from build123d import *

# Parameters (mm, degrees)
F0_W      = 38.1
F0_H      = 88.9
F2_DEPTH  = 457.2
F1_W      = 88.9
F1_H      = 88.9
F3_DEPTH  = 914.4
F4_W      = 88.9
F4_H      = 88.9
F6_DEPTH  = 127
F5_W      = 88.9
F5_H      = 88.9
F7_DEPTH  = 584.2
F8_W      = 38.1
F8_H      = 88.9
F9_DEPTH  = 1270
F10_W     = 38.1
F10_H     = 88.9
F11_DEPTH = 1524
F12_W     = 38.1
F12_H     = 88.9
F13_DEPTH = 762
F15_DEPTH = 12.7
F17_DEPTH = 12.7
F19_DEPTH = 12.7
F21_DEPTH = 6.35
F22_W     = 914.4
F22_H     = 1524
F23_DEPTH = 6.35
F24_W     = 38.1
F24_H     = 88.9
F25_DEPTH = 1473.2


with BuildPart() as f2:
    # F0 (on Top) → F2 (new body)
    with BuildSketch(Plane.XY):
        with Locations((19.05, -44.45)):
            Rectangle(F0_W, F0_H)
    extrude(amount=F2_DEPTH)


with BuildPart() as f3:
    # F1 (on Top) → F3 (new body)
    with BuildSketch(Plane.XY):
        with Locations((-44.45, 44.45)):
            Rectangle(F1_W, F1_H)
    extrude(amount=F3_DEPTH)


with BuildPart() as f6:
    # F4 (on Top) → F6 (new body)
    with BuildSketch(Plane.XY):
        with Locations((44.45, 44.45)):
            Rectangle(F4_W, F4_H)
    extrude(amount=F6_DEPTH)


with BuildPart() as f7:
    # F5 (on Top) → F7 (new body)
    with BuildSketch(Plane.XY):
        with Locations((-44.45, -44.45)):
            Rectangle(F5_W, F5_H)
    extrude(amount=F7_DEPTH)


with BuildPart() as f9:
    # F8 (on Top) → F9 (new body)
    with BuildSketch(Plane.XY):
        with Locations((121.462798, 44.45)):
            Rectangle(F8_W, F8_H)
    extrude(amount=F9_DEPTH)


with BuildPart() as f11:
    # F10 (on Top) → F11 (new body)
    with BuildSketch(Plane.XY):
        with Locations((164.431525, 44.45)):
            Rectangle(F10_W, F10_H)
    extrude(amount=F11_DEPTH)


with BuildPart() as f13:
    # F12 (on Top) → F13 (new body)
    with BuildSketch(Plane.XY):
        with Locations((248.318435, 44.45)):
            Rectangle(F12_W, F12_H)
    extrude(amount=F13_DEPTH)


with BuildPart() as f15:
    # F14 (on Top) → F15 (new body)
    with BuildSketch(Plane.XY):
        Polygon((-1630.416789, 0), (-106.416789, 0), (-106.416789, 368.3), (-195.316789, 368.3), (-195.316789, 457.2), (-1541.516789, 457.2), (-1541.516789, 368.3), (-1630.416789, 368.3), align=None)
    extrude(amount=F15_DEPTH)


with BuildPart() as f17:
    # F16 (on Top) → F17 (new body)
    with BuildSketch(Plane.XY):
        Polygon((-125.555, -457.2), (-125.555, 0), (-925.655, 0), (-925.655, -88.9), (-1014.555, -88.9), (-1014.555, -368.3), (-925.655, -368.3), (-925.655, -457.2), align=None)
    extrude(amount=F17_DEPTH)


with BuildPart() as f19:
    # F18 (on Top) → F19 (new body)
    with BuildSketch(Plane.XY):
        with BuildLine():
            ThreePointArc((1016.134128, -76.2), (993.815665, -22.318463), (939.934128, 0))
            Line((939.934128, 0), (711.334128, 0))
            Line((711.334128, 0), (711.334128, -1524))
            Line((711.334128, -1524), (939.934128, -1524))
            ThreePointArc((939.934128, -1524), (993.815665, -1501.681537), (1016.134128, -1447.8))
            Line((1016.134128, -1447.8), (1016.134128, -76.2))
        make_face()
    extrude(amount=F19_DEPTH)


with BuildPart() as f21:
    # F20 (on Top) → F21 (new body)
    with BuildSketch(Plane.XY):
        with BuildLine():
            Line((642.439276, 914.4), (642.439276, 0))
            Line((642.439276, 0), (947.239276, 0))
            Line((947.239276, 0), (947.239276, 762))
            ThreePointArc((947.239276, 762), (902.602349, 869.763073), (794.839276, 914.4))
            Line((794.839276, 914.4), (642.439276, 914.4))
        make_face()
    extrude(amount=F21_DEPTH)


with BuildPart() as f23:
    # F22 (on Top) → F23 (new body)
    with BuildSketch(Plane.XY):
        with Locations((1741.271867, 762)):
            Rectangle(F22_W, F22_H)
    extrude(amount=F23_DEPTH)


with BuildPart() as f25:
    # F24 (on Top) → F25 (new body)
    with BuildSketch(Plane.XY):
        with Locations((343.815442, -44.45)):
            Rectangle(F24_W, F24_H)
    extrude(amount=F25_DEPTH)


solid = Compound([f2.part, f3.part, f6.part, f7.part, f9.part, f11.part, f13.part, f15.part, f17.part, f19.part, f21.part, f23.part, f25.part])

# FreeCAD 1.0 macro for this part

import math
import FreeCAD as App
import Part
import Sketcher

V = App.Vector
Q = App.Units.Quantity


def add_polygon(sketch, points):
    """Adds a closed chain of lines whose ends are joined by coincident constraints."""
    first, n = sketch.GeometryCount, len(points)
    for a, b in zip(points, points[1:] + points[:1]):
        sketch.addGeometry(Part.LineSegment(App.Vector(*a, 0), App.Vector(*b, 0)), False)
    for i in range(n):
        sketch.addConstraint(Sketcher.Constraint("Coincident", first + i, 2, first + (i + 1) % n, 1))

doc = App.newDocument("Part")
params = doc.addObject("Spreadsheet::Sheet", "Params")
for row, (alias, value) in enumerate([
    ("sketch1_width", "1.5 in"),
    ("sketch1_height", "3.5 in"),
    ("pad1_length", "18 in"),
    ("sketch2_width", "3.5 in"),
    ("pad2_length", "36 in"),
    ("sketch3_width", "3.5 in"),
    ("pad3_length", "5 in"),
    ("sketch4_width", "3.5 in"),
    ("pad4_length", "23 in"),
    ("sketch5_width", "1.5 in"),
    ("sketch5_height", "3.5 in"),
    ("pad5_length", "50 in"),
    ("sketch6_width", "1.5 in"),
    ("sketch6_height", "3.5 in"),
    ("pad6_length", "60 in"),
    ("sketch7_width", "1.5 in"),
    ("sketch7_height", "3.5 in"),
    ("pad7_length", "30 in"),
    ("sketch8_width", "60 in"),
    ("sketch8_width2", "53 in"),
    ("sketch8_height", "14.5 in"),
    ("pad8_length", "0.5 in"),
    ("sketch9_height", "18 in"),
    ("sketch9_height2", "11 in"),
    ("sketch9_width", "31.5 in"),
    ("pad9_length", "0.5 in"),
    ("sketch10_radius", "3 in"),
    ("sketch10_width", "9 in"),
    ("sketch10_height", "60 in"),
    ("pad10_length", "0.5 in"),
    ("sketch11_radius", "6.0000001 in"),
    ("sketch11_width", "12 in"),
    ("sketch11_height", "36 in"),
    ("pad11_length", "0.25 in"),
    ("sketch12_width", "36 in"),
    ("sketch12_height", "60 in"),
    ("pad12_length", "0.25 in"),
    ("sketch13_width", "1.5 in"),
    ("sketch13_height", "3.5 in"),
    ("pad13_length", "58 in"),
], start=1):
    params.set(f"A{row}", alias)
    params.set(f"B{row}", "=" + value)
    params.setAlias(f"B{row}", alias)

body = doc.addObject("PartDesign::Body", "Body")

sketch1 = doc.addObject("Sketcher::SketchObject", "Sketch")
body.addObject(sketch1)
sketch1.AttachmentSupport = (doc.XY_Plane, [""])
sketch1.MapMode = "FlatFace"
add_polygon(sketch1, [(0, 0), (0, -88.9), (38.1, -88.9), (38.1, 0)])
sketch1.addConstraint(Sketcher.Constraint("Vertical", 0))
sketch1.addConstraint(Sketcher.Constraint("Horizontal", 1))
sketch1.addConstraint(Sketcher.Constraint("Vertical", 2))
sketch1.addConstraint(Sketcher.Constraint("Horizontal", 3))
sketch1.addConstraint(Sketcher.Constraint("Coincident", 3, 2, -1, 1))
sketch1.addConstraint(Sketcher.Constraint("DistanceX", 1, 1, 1, 2, Q("1.5 in")))
sketch1.addConstraint(Sketcher.Constraint("DistanceY", 0, 2, 0, 1, Q("3.5 in")))
sketch1.setExpression("Constraints[9]", "Params.sketch1_width")
sketch1.setExpression("Constraints[10]", "Params.sketch1_height")
pad1 = doc.addObject("PartDesign::Pad", "Pad")
body.addObject(pad1)
pad1.Profile = sketch1
pad1.setExpression("Length", "Params.pad1_length")
body2 = doc.addObject("PartDesign::Body", "Body001")

sketch2 = doc.addObject("Sketcher::SketchObject", "Sketch001")
body2.addObject(sketch2)
sketch2.AttachmentSupport = (doc.getObject("XY_Plane001"), [""])
sketch2.MapMode = "FlatFace"
add_polygon(sketch2, [(-88.9, 88.9), (-88.9, 0), (0, 0), (0, 88.9)])
sketch2.addConstraint(Sketcher.Constraint("Vertical", 0))
sketch2.addConstraint(Sketcher.Constraint("Horizontal", 1))
sketch2.addConstraint(Sketcher.Constraint("Vertical", 2))
sketch2.addConstraint(Sketcher.Constraint("Horizontal", 3))
sketch2.addConstraint(Sketcher.Constraint("Coincident", 1, 2, -1, 1))
sketch2.addConstraint(Sketcher.Constraint("Equal", 3, 0))
sketch2.addConstraint(Sketcher.Constraint("DistanceX", 1, 1, 1, 2, Q("3.5 in")))
sketch2.setExpression("Constraints[10]", "Params.sketch2_width")
pad2 = doc.addObject("PartDesign::Pad", "Pad001")
body2.addObject(pad2)
pad2.Profile = sketch2
pad2.setExpression("Length", "Params.pad2_length")
body3 = doc.addObject("PartDesign::Body", "Body002")

sketch3 = doc.addObject("Sketcher::SketchObject", "Sketch002")
body3.addObject(sketch3)
sketch3.AttachmentSupport = (doc.getObject("XY_Plane002"), [""])
sketch3.MapMode = "FlatFace"
add_polygon(sketch3, [(0, 88.9), (0, 0), (88.9, 0), (88.9, 88.9)])
sketch3.addConstraint(Sketcher.Constraint("Vertical", 0))
sketch3.addConstraint(Sketcher.Constraint("Horizontal", 1))
sketch3.addConstraint(Sketcher.Constraint("Vertical", 2))
sketch3.addConstraint(Sketcher.Constraint("Horizontal", 3))
sketch3.addConstraint(Sketcher.Constraint("Coincident", 0, 2, -1, 1))
sketch3.addConstraint(Sketcher.Constraint("Equal", 3, 0))
sketch3.addConstraint(Sketcher.Constraint("DistanceX", 1, 1, 1, 2, Q("3.5 in")))
sketch3.setExpression("Constraints[10]", "Params.sketch3_width")
pad3 = doc.addObject("PartDesign::Pad", "Pad002")
body3.addObject(pad3)
pad3.Profile = sketch3
pad3.setExpression("Length", "Params.pad3_length")
body4 = doc.addObject("PartDesign::Body", "Body003")

sketch4 = doc.addObject("Sketcher::SketchObject", "Sketch003")
body4.addObject(sketch4)
sketch4.AttachmentSupport = (doc.getObject("XY_Plane003"), [""])
sketch4.MapMode = "FlatFace"
add_polygon(sketch4, [(-88.9, 0), (-88.9, -88.9), (0, -88.9), (0, 0)])
sketch4.addConstraint(Sketcher.Constraint("Vertical", 0))
sketch4.addConstraint(Sketcher.Constraint("Horizontal", 1))
sketch4.addConstraint(Sketcher.Constraint("Vertical", 2))
sketch4.addConstraint(Sketcher.Constraint("Horizontal", 3))
sketch4.addConstraint(Sketcher.Constraint("Coincident", 2, 2, -1, 1))
sketch4.addConstraint(Sketcher.Constraint("Equal", 3, 0))
sketch4.addConstraint(Sketcher.Constraint("DistanceX", 1, 1, 1, 2, Q("3.5 in")))
sketch4.setExpression("Constraints[10]", "Params.sketch4_width")
pad4 = doc.addObject("PartDesign::Pad", "Pad003")
body4.addObject(pad4)
pad4.Profile = sketch4
pad4.setExpression("Length", "Params.pad4_length")
body5 = doc.addObject("PartDesign::Body", "Body004")

sketch5 = doc.addObject("Sketcher::SketchObject", "Sketch004")
body5.addObject(sketch5)
sketch5.AttachmentSupport = (doc.getObject("XY_Plane004"), [""])
sketch5.MapMode = "FlatFace"
add_polygon(sketch5, [(102.412798, 88.9), (102.412798, 0), (140.512798, 0), (140.512798, 88.9)])
sketch5.addConstraint(Sketcher.Constraint("Vertical", 0))
sketch5.addConstraint(Sketcher.Constraint("Horizontal", 1))
sketch5.addConstraint(Sketcher.Constraint("Vertical", 2))
sketch5.addConstraint(Sketcher.Constraint("Horizontal", 3))
sketch5.addConstraint(Sketcher.Constraint("PointOnObject", 0, 2, -1))
sketch5.addConstraint(Sketcher.Constraint("DistanceX", 1, 1, 1, 2, Q("1.5 in")))
sketch5.addConstraint(Sketcher.Constraint("DistanceY", 0, 2, 0, 1, Q("3.5 in")))
sketch5.addConstraint(Sketcher.Constraint("DistanceX", -1, 1, 0, 2, Q("4.0319999 in")))
sketch5.setExpression("Constraints[9]", "Params.sketch5_width")
sketch5.setExpression("Constraints[10]", "Params.sketch5_height")
pad5 = doc.addObject("PartDesign::Pad", "Pad004")
body5.addObject(pad5)
pad5.Profile = sketch5
pad5.setExpression("Length", "Params.pad5_length")
body6 = doc.addObject("PartDesign::Body", "Body005")

sketch6 = doc.addObject("Sketcher::SketchObject", "Sketch005")
body6.addObject(sketch6)
sketch6.AttachmentSupport = (doc.getObject("XY_Plane005"), [""])
sketch6.MapMode = "FlatFace"
add_polygon(sketch6, [(145.381525, 88.9), (145.381525, 0), (183.481525, 0), (183.481525, 88.9)])
sketch6.addConstraint(Sketcher.Constraint("Vertical", 0))
sketch6.addConstraint(Sketcher.Constraint("Horizontal", 1))
sketch6.addConstraint(Sketcher.Constraint("Vertical", 2))
sketch6.addConstraint(Sketcher.Constraint("Horizontal", 3))
sketch6.addConstraint(Sketcher.Constraint("PointOnObject", 0, 2, -1))
sketch6.addConstraint(Sketcher.Constraint("DistanceX", 1, 1, 1, 2, Q("1.5 in")))
sketch6.addConstraint(Sketcher.Constraint("DistanceY", 0, 2, 0, 1, Q("3.5 in")))
sketch6.addConstraint(Sketcher.Constraint("DistanceX", -1, 1, 0, 2, 145.381525))
sketch6.setExpression("Constraints[9]", "Params.sketch6_width")
sketch6.setExpression("Constraints[10]", "Params.sketch6_height")
pad6 = doc.addObject("PartDesign::Pad", "Pad005")
body6.addObject(pad6)
pad6.Profile = sketch6
pad6.setExpression("Length", "Params.pad6_length")
body7 = doc.addObject("PartDesign::Body", "Body006")

sketch7 = doc.addObject("Sketcher::SketchObject", "Sketch006")
body7.addObject(sketch7)
sketch7.AttachmentSupport = (doc.getObject("XY_Plane006"), [""])
sketch7.MapMode = "FlatFace"
add_polygon(sketch7, [(229.268435, 88.9), (229.268435, 0), (267.368435, 0), (267.368435, 88.9)])
sketch7.addConstraint(Sketcher.Constraint("Vertical", 0))
sketch7.addConstraint(Sketcher.Constraint("Horizontal", 1))
sketch7.addConstraint(Sketcher.Constraint("Vertical", 2))
sketch7.addConstraint(Sketcher.Constraint("Horizontal", 3))
sketch7.addConstraint(Sketcher.Constraint("PointOnObject", 0, 2, -1))
sketch7.addConstraint(Sketcher.Constraint("DistanceX", 1, 1, 1, 2, Q("1.5 in")))
sketch7.addConstraint(Sketcher.Constraint("DistanceY", 0, 2, 0, 1, Q("3.5 in")))
sketch7.addConstraint(Sketcher.Constraint("DistanceX", -1, 1, 0, 2, 229.268435))
sketch7.setExpression("Constraints[9]", "Params.sketch7_width")
sketch7.setExpression("Constraints[10]", "Params.sketch7_height")
pad7 = doc.addObject("PartDesign::Pad", "Pad006")
body7.addObject(pad7)
pad7.Profile = sketch7
pad7.setExpression("Length", "Params.pad7_length")
body8 = doc.addObject("PartDesign::Body", "Body007")

sketch8 = doc.addObject("Sketcher::SketchObject", "Sketch007")
body8.addObject(sketch8)
sketch8.AttachmentSupport = (doc.getObject("XY_Plane007"), [""])
sketch8.MapMode = "FlatFace"
add_polygon(sketch8, [(-1630.416789, 0), (-106.416789, 0), (-106.416789, 368.3), (-195.316789, 368.3), (-195.316789, 457.2), (-1541.516789, 457.2), (-1541.516789, 368.3), (-1630.416789, 368.3)])
sketch8.addConstraint(Sketcher.Constraint("Horizontal", 0))
sketch8.addConstraint(Sketcher.Constraint("Vertical", 1))
sketch8.addConstraint(Sketcher.Constraint("Horizontal", 2))
sketch8.addConstraint(Sketcher.Constraint("Vertical", 3))
sketch8.addConstraint(Sketcher.Constraint("Horizontal", 4))
sketch8.addConstraint(Sketcher.Constraint("Vertical", 5))
sketch8.addConstraint(Sketcher.Constraint("Horizontal", 6))
sketch8.addConstraint(Sketcher.Constraint("Vertical", 7))
sketch8.addConstraint(Sketcher.Constraint("PointOnObject", 0, 2, -1))
sketch8.addConstraint(Sketcher.Constraint("Horizontal", 2, 2, 5, 2))
sketch8.addConstraint(Sketcher.Constraint("Equal", 2, 6))
sketch8.addConstraint(Sketcher.Constraint("Equal", 6, 3))
sketch8.addConstraint(Sketcher.Constraint("DistanceX", 0, 1, 0, 2, Q("60 in")))
sketch8.addConstraint(Sketcher.Constraint("DistanceX", 4, 2, 4, 1, Q("53 in")))
sketch8.addConstraint(Sketcher.Constraint("DistanceY", 1, 1, 1, 2, Q("14.5 in")))
sketch8.addConstraint(Sketcher.Constraint("DistanceX", 0, 2, -1, 1, 106.416789))
sketch8.setExpression("Constraints[20]", "Params.sketch8_width")
sketch8.setExpression("Constraints[21]", "Params.sketch8_width2")
sketch8.setExpression("Constraints[22]", "Params.sketch8_height")
pad8 = doc.addObject("PartDesign::Pad", "Pad007")
body8.addObject(pad8)
pad8.Profile = sketch8
pad8.setExpression("Length", "Params.pad8_length")
body9 = doc.addObject("PartDesign::Body", "Body008")

sketch9 = doc.addObject("Sketcher::SketchObject", "Sketch008")
body9.addObject(sketch9)
sketch9.AttachmentSupport = (doc.getObject("XY_Plane008"), [""])
sketch9.MapMode = "FlatFace"
add_polygon(sketch9, [(-125.555, -457.2), (-125.555, 0), (-925.655, 0), (-925.655, -88.9), (-1014.555, -88.9), (-1014.555, -368.3), (-925.655, -368.3), (-925.655, -457.2)])
sketch9.addConstraint(Sketcher.Constraint("Vertical", 0))
sketch9.addConstraint(Sketcher.Constraint("Horizontal", 1))
sketch9.addConstraint(Sketcher.Constraint("Vertical", 2))
sketch9.addConstraint(Sketcher.Constraint("Horizontal", 3))
sketch9.addConstraint(Sketcher.Constraint("Vertical", 4))
sketch9.addConstraint(Sketcher.Constraint("Horizontal", 5))
sketch9.addConstraint(Sketcher.Constraint("Vertical", 6))
sketch9.addConstraint(Sketcher.Constraint("Horizontal", 7))
sketch9.addConstraint(Sketcher.Constraint("PointOnObject", 0, 2, -1))
sketch9.addConstraint(Sketcher.Constraint("Vertical", 2, 2, 5, 2))
sketch9.addConstraint(Sketcher.Constraint("Equal", 5, 2))
sketch9.addConstraint(Sketcher.Constraint("Equal", 2, 6))
sketch9.addConstraint(Sketcher.Constraint("DistanceY", 0, 1, 0, 2, Q("18 in")))
sketch9.addConstraint(Sketcher.Constraint("DistanceY", 4, 2, 4, 1, Q("11 in")))
sketch9.addConstraint(Sketcher.Constraint("DistanceX", 1, 2, 1, 1, Q("31.5 in")))
sketch9.addConstraint(Sketcher.Constraint("DistanceX", 0, 2, -1, 1, 125.555))
sketch9.setExpression("Constraints[20]", "Params.sketch9_height")
sketch9.setExpression("Constraints[21]", "Params.sketch9_height2")
sketch9.setExpression("Constraints[22]", "Params.sketch9_width")
pad9 = doc.addObject("PartDesign::Pad", "Pad008")
body9.addObject(pad9)
pad9.Profile = sketch9
pad9.setExpression("Length", "Params.pad9_length")
body10 = doc.addObject("PartDesign::Body", "Body009")

sketch10 = doc.addObject("Sketcher::SketchObject", "Sketch009")
body10.addObject(sketch10)
sketch10.AttachmentSupport = (doc.getObject("XY_Plane009"), [""])
sketch10.MapMode = "FlatFace"
sketch10.addGeometry(Part.ArcOfCircle(Part.Circle(V(939.934129, -76.199999, 0), V(0, 0, 1), 76.199999), math.radians(-0.000001), math.radians(90.000001)), False)
sketch10.addGeometry(Part.LineSegment(V(939.934128, 0, 0), V(711.334128, 0, 0)), False)
sketch10.addGeometry(Part.LineSegment(V(711.334128, 0, 0), V(711.334128, -1524, 0)), False)
sketch10.addGeometry(Part.LineSegment(V(711.334128, -1524, 0), V(939.934128, -1524, 0)), False)
sketch10.addGeometry(Part.ArcOfCircle(Part.Circle(V(939.934129, -1447.800001, 0), V(0, 0, 1), 76.199999), math.radians(-90.000001), math.radians(0.000001)), False)
sketch10.addGeometry(Part.LineSegment(V(1016.134128, -1447.8, 0), V(1016.134128, -76.2, 0)), False)
sketch10.addConstraint(Sketcher.Constraint("Tangent", 0, 2, 1, 1))
sketch10.addConstraint(Sketcher.Constraint("Coincident", 1, 2, 2, 1))
sketch10.addConstraint(Sketcher.Constraint("Coincident", 2, 2, 3, 1))
sketch10.addConstraint(Sketcher.Constraint("Tangent", 3, 2, 4, 1))
sketch10.addConstraint(Sketcher.Constraint("Tangent", 4, 2, 5, 1))
sketch10.addConstraint(Sketcher.Constraint("Tangent", 5, 2, 0, 1))
sketch10.addConstraint(Sketcher.Constraint("Horizontal", 1))
sketch10.addConstraint(Sketcher.Constraint("Vertical", 2))
sketch10.addConstraint(Sketcher.Constraint("Horizontal", 3))
sketch10.addConstraint(Sketcher.Constraint("Vertical", 5))
sketch10.addConstraint(Sketcher.Constraint("Equal", 0, 4))
sketch10.addConstraint(Sketcher.Constraint("PointOnObject", 0, 2, -1))
sketch10.addConstraint(Sketcher.Constraint("Radius", 0, Q("3 in")))
sketch10.addConstraint(Sketcher.Constraint("DistanceX", 1, 2, 1, 1, Q("9 in")))
sketch10.addConstraint(Sketcher.Constraint("DistanceY", 2, 2, 2, 1, Q("60 in")))
sketch10.addConstraint(Sketcher.Constraint("DistanceX", -1, 1, 0, 3, 939.934129))
sketch10.setExpression("Constraints[12]", "Params.sketch10_radius")
sketch10.setExpression("Constraints[13]", "Params.sketch10_width")
sketch10.setExpression("Constraints[14]", "Params.sketch10_height")
pad10 = doc.addObject("PartDesign::Pad", "Pad009")
body10.addObject(pad10)
pad10.Profile = sketch10
pad10.setExpression("Length", "Params.pad10_length")
body11 = doc.addObject("PartDesign::Body", "Body010")

sketch11 = doc.addObject("Sketcher::SketchObject", "Sketch010")
body11.addObject(sketch11)
sketch11.AttachmentSupport = (doc.getObject("XY_Plane010"), [""])
sketch11.MapMode = "FlatFace"
sketch11.addGeometry(Part.LineSegment(V(642.439276, 914.4, 0), V(642.439276, 0, 0)), False)
sketch11.addGeometry(Part.LineSegment(V(642.439276, 0, 0), V(947.239276, 0, 0)), False)
sketch11.addGeometry(Part.LineSegment(V(947.239276, 0, 0), V(947.239276, 762, 0)), False)
sketch11.addGeometry(Part.ArcOfCircle(Part.Circle(V(794.839274, 761.999998, 0), V(0, 0, 1), 152.400002), math.radians(0.000001), math.radians(89.999999)), False)
sketch11.addGeometry(Part.LineSegment(V(794.839276, 914.4, 0), V(642.439276, 914.4, 0)), False)
sketch11.addConstraint(Sketcher.Constraint("Coincident", 0, 2, 1, 1))
sketch11.addConstraint(Sketcher.Constraint("Coincident", 1, 2, 2, 1))
sketch11.addConstraint(Sketcher.Constraint("Tangent", 2, 2, 3, 1))
sketch11.addConstraint(Sketcher.Constraint("Tangent", 3, 2, 4, 1))
sketch11.addConstraint(Sketcher.Constraint("Coincident", 4, 2, 0, 1))
sketch11.addConstraint(Sketcher.Constraint("Vertical", 0))
sketch11.addConstraint(Sketcher.Constraint("Horizontal", 1))
sketch11.addConstraint(Sketcher.Constraint("Vertical", 2))
sketch11.addConstraint(Sketcher.Constraint("Horizontal", 4))
sketch11.addConstraint(Sketcher.Constraint("PointOnObject", 0, 2, -1))
sketch11.addConstraint(Sketcher.Constraint("Radius", 3, Q("6.0000001 in")))
sketch11.addConstraint(Sketcher.Constraint("DistanceX", 1, 1, 1, 2, Q("12 in")))
sketch11.addConstraint(Sketcher.Constraint("DistanceY", 0, 2, 0, 1, Q("36 in")))
sketch11.addConstraint(Sketcher.Constraint("DistanceX", -1, 1, 3, 3, 794.839274))
sketch11.setExpression("Constraints[10]", "Params.sketch11_radius")
sketch11.setExpression("Constraints[11]", "Params.sketch11_width")
sketch11.setExpression("Constraints[12]", "Params.sketch11_height")
pad11 = doc.addObject("PartDesign::Pad", "Pad010")
body11.addObject(pad11)
pad11.Profile = sketch11
pad11.setExpression("Length", "Params.pad11_length")
body12 = doc.addObject("PartDesign::Body", "Body011")

sketch12 = doc.addObject("Sketcher::SketchObject", "Sketch011")
body12.addObject(sketch12)
sketch12.AttachmentSupport = (doc.getObject("XY_Plane011"), [""])
sketch12.MapMode = "FlatFace"
add_polygon(sketch12, [(1284.071867, 1524), (1284.071867, 0), (2198.471867, 0), (2198.471867, 1524)])
sketch12.addConstraint(Sketcher.Constraint("Vertical", 0))
sketch12.addConstraint(Sketcher.Constraint("Horizontal", 1))
sketch12.addConstraint(Sketcher.Constraint("Vertical", 2))
sketch12.addConstraint(Sketcher.Constraint("Horizontal", 3))
sketch12.addConstraint(Sketcher.Constraint("PointOnObject", 0, 2, -1))
sketch12.addConstraint(Sketcher.Constraint("DistanceX", 1, 1, 1, 2, Q("36 in")))
sketch12.addConstraint(Sketcher.Constraint("DistanceY", 0, 2, 0, 1, Q("60 in")))
sketch12.addConstraint(Sketcher.Constraint("DistanceX", -1, 1, 0, 2, 1284.071867))
sketch12.setExpression("Constraints[9]", "Params.sketch12_width")
sketch12.setExpression("Constraints[10]", "Params.sketch12_height")
pad12 = doc.addObject("PartDesign::Pad", "Pad011")
body12.addObject(pad12)
pad12.Profile = sketch12
pad12.setExpression("Length", "Params.pad12_length")
body13 = doc.addObject("PartDesign::Body", "Body012")

sketch13 = doc.addObject("Sketcher::SketchObject", "Sketch012")
body13.addObject(sketch13)
sketch13.AttachmentSupport = (doc.getObject("XY_Plane012"), [""])
sketch13.MapMode = "FlatFace"
add_polygon(sketch13, [(324.765442, 0), (324.765442, -88.9), (362.865442, -88.9), (362.865442, 0)])
sketch13.addConstraint(Sketcher.Constraint("Vertical", 0))
sketch13.addConstraint(Sketcher.Constraint("Horizontal", 1))
sketch13.addConstraint(Sketcher.Constraint("Vertical", 2))
sketch13.addConstraint(Sketcher.Constraint("Horizontal", 3))
sketch13.addConstraint(Sketcher.Constraint("PointOnObject", 2, 2, -1))
sketch13.addConstraint(Sketcher.Constraint("DistanceX", 1, 1, 1, 2, Q("1.5 in")))
sketch13.addConstraint(Sketcher.Constraint("DistanceY", 0, 2, 0, 1, Q("3.5 in")))
sketch13.addConstraint(Sketcher.Constraint("DistanceX", -1, 1, 0, 2, 324.765442))
sketch13.setExpression("Constraints[9]", "Params.sketch13_width")
sketch13.setExpression("Constraints[10]", "Params.sketch13_height")
pad13 = doc.addObject("PartDesign::Pad", "Pad012")
body13.addObject(pad13)
pad13.Profile = sketch13
pad13.setExpression("Length", "Params.pad13_length")

doc.recompute()
